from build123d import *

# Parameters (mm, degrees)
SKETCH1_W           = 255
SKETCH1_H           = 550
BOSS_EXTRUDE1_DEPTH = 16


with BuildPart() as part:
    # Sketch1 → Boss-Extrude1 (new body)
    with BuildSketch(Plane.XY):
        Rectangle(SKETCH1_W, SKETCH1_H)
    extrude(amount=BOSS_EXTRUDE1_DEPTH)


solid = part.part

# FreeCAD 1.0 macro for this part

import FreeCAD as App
import Part
import Sketcher

V = App.Vector


def add_polygon(sketch, points):
    """Adds a closed chain of lines whose ends are joined by coincident constraints."""
    first, n = sketch.GeometryCount, len(points)
    for a, b in zip(points, points[1:] + points[:1]):
        sketch.addGeometry(Part.LineSegment(App.Vector(*a, 0), App.Vector(*b, 0)), False)
    for i in range(n):
        sketch.addConstraint(Sketcher.Constraint("Coincident", first + i, 2, first + (i + 1) % n, 1))

doc = App.newDocument("Part")
body = doc.addObject("PartDesign::Body", "Body")

sketch1 = body.newObject("Sketcher::SketchObject", "Sketch")
sketch1.AttachmentSupport = (doc.getObject("XY_Plane"), [""])
sketch1.MapMode = "FlatFace"
add_polygon(sketch1, [(-128, 275), (-128, -275), (128, -275), (128, 275)])
sketch1.addConstraint([
    Sketcher.Constraint("Vertical", 0),
    Sketcher.Constraint("Horizontal", 1),
    Sketcher.Constraint("Vertical", 2),
    Sketcher.Constraint("Horizontal", 3),
    Sketcher.Constraint("Symmetric", 0, 2, 2, 2, -1, 1),
    Sketcher.Constraint("DistanceX", 1, 1, 1, 2, 255.0),
    Sketcher.Constraint("DistanceY", 0, 2, 0, 1, 550.0),
])
pad1 = body.newObject("PartDesign::Pad", "Pad")
pad1.Profile = sketch1
pad1.Length = 16

doc.recompute()
